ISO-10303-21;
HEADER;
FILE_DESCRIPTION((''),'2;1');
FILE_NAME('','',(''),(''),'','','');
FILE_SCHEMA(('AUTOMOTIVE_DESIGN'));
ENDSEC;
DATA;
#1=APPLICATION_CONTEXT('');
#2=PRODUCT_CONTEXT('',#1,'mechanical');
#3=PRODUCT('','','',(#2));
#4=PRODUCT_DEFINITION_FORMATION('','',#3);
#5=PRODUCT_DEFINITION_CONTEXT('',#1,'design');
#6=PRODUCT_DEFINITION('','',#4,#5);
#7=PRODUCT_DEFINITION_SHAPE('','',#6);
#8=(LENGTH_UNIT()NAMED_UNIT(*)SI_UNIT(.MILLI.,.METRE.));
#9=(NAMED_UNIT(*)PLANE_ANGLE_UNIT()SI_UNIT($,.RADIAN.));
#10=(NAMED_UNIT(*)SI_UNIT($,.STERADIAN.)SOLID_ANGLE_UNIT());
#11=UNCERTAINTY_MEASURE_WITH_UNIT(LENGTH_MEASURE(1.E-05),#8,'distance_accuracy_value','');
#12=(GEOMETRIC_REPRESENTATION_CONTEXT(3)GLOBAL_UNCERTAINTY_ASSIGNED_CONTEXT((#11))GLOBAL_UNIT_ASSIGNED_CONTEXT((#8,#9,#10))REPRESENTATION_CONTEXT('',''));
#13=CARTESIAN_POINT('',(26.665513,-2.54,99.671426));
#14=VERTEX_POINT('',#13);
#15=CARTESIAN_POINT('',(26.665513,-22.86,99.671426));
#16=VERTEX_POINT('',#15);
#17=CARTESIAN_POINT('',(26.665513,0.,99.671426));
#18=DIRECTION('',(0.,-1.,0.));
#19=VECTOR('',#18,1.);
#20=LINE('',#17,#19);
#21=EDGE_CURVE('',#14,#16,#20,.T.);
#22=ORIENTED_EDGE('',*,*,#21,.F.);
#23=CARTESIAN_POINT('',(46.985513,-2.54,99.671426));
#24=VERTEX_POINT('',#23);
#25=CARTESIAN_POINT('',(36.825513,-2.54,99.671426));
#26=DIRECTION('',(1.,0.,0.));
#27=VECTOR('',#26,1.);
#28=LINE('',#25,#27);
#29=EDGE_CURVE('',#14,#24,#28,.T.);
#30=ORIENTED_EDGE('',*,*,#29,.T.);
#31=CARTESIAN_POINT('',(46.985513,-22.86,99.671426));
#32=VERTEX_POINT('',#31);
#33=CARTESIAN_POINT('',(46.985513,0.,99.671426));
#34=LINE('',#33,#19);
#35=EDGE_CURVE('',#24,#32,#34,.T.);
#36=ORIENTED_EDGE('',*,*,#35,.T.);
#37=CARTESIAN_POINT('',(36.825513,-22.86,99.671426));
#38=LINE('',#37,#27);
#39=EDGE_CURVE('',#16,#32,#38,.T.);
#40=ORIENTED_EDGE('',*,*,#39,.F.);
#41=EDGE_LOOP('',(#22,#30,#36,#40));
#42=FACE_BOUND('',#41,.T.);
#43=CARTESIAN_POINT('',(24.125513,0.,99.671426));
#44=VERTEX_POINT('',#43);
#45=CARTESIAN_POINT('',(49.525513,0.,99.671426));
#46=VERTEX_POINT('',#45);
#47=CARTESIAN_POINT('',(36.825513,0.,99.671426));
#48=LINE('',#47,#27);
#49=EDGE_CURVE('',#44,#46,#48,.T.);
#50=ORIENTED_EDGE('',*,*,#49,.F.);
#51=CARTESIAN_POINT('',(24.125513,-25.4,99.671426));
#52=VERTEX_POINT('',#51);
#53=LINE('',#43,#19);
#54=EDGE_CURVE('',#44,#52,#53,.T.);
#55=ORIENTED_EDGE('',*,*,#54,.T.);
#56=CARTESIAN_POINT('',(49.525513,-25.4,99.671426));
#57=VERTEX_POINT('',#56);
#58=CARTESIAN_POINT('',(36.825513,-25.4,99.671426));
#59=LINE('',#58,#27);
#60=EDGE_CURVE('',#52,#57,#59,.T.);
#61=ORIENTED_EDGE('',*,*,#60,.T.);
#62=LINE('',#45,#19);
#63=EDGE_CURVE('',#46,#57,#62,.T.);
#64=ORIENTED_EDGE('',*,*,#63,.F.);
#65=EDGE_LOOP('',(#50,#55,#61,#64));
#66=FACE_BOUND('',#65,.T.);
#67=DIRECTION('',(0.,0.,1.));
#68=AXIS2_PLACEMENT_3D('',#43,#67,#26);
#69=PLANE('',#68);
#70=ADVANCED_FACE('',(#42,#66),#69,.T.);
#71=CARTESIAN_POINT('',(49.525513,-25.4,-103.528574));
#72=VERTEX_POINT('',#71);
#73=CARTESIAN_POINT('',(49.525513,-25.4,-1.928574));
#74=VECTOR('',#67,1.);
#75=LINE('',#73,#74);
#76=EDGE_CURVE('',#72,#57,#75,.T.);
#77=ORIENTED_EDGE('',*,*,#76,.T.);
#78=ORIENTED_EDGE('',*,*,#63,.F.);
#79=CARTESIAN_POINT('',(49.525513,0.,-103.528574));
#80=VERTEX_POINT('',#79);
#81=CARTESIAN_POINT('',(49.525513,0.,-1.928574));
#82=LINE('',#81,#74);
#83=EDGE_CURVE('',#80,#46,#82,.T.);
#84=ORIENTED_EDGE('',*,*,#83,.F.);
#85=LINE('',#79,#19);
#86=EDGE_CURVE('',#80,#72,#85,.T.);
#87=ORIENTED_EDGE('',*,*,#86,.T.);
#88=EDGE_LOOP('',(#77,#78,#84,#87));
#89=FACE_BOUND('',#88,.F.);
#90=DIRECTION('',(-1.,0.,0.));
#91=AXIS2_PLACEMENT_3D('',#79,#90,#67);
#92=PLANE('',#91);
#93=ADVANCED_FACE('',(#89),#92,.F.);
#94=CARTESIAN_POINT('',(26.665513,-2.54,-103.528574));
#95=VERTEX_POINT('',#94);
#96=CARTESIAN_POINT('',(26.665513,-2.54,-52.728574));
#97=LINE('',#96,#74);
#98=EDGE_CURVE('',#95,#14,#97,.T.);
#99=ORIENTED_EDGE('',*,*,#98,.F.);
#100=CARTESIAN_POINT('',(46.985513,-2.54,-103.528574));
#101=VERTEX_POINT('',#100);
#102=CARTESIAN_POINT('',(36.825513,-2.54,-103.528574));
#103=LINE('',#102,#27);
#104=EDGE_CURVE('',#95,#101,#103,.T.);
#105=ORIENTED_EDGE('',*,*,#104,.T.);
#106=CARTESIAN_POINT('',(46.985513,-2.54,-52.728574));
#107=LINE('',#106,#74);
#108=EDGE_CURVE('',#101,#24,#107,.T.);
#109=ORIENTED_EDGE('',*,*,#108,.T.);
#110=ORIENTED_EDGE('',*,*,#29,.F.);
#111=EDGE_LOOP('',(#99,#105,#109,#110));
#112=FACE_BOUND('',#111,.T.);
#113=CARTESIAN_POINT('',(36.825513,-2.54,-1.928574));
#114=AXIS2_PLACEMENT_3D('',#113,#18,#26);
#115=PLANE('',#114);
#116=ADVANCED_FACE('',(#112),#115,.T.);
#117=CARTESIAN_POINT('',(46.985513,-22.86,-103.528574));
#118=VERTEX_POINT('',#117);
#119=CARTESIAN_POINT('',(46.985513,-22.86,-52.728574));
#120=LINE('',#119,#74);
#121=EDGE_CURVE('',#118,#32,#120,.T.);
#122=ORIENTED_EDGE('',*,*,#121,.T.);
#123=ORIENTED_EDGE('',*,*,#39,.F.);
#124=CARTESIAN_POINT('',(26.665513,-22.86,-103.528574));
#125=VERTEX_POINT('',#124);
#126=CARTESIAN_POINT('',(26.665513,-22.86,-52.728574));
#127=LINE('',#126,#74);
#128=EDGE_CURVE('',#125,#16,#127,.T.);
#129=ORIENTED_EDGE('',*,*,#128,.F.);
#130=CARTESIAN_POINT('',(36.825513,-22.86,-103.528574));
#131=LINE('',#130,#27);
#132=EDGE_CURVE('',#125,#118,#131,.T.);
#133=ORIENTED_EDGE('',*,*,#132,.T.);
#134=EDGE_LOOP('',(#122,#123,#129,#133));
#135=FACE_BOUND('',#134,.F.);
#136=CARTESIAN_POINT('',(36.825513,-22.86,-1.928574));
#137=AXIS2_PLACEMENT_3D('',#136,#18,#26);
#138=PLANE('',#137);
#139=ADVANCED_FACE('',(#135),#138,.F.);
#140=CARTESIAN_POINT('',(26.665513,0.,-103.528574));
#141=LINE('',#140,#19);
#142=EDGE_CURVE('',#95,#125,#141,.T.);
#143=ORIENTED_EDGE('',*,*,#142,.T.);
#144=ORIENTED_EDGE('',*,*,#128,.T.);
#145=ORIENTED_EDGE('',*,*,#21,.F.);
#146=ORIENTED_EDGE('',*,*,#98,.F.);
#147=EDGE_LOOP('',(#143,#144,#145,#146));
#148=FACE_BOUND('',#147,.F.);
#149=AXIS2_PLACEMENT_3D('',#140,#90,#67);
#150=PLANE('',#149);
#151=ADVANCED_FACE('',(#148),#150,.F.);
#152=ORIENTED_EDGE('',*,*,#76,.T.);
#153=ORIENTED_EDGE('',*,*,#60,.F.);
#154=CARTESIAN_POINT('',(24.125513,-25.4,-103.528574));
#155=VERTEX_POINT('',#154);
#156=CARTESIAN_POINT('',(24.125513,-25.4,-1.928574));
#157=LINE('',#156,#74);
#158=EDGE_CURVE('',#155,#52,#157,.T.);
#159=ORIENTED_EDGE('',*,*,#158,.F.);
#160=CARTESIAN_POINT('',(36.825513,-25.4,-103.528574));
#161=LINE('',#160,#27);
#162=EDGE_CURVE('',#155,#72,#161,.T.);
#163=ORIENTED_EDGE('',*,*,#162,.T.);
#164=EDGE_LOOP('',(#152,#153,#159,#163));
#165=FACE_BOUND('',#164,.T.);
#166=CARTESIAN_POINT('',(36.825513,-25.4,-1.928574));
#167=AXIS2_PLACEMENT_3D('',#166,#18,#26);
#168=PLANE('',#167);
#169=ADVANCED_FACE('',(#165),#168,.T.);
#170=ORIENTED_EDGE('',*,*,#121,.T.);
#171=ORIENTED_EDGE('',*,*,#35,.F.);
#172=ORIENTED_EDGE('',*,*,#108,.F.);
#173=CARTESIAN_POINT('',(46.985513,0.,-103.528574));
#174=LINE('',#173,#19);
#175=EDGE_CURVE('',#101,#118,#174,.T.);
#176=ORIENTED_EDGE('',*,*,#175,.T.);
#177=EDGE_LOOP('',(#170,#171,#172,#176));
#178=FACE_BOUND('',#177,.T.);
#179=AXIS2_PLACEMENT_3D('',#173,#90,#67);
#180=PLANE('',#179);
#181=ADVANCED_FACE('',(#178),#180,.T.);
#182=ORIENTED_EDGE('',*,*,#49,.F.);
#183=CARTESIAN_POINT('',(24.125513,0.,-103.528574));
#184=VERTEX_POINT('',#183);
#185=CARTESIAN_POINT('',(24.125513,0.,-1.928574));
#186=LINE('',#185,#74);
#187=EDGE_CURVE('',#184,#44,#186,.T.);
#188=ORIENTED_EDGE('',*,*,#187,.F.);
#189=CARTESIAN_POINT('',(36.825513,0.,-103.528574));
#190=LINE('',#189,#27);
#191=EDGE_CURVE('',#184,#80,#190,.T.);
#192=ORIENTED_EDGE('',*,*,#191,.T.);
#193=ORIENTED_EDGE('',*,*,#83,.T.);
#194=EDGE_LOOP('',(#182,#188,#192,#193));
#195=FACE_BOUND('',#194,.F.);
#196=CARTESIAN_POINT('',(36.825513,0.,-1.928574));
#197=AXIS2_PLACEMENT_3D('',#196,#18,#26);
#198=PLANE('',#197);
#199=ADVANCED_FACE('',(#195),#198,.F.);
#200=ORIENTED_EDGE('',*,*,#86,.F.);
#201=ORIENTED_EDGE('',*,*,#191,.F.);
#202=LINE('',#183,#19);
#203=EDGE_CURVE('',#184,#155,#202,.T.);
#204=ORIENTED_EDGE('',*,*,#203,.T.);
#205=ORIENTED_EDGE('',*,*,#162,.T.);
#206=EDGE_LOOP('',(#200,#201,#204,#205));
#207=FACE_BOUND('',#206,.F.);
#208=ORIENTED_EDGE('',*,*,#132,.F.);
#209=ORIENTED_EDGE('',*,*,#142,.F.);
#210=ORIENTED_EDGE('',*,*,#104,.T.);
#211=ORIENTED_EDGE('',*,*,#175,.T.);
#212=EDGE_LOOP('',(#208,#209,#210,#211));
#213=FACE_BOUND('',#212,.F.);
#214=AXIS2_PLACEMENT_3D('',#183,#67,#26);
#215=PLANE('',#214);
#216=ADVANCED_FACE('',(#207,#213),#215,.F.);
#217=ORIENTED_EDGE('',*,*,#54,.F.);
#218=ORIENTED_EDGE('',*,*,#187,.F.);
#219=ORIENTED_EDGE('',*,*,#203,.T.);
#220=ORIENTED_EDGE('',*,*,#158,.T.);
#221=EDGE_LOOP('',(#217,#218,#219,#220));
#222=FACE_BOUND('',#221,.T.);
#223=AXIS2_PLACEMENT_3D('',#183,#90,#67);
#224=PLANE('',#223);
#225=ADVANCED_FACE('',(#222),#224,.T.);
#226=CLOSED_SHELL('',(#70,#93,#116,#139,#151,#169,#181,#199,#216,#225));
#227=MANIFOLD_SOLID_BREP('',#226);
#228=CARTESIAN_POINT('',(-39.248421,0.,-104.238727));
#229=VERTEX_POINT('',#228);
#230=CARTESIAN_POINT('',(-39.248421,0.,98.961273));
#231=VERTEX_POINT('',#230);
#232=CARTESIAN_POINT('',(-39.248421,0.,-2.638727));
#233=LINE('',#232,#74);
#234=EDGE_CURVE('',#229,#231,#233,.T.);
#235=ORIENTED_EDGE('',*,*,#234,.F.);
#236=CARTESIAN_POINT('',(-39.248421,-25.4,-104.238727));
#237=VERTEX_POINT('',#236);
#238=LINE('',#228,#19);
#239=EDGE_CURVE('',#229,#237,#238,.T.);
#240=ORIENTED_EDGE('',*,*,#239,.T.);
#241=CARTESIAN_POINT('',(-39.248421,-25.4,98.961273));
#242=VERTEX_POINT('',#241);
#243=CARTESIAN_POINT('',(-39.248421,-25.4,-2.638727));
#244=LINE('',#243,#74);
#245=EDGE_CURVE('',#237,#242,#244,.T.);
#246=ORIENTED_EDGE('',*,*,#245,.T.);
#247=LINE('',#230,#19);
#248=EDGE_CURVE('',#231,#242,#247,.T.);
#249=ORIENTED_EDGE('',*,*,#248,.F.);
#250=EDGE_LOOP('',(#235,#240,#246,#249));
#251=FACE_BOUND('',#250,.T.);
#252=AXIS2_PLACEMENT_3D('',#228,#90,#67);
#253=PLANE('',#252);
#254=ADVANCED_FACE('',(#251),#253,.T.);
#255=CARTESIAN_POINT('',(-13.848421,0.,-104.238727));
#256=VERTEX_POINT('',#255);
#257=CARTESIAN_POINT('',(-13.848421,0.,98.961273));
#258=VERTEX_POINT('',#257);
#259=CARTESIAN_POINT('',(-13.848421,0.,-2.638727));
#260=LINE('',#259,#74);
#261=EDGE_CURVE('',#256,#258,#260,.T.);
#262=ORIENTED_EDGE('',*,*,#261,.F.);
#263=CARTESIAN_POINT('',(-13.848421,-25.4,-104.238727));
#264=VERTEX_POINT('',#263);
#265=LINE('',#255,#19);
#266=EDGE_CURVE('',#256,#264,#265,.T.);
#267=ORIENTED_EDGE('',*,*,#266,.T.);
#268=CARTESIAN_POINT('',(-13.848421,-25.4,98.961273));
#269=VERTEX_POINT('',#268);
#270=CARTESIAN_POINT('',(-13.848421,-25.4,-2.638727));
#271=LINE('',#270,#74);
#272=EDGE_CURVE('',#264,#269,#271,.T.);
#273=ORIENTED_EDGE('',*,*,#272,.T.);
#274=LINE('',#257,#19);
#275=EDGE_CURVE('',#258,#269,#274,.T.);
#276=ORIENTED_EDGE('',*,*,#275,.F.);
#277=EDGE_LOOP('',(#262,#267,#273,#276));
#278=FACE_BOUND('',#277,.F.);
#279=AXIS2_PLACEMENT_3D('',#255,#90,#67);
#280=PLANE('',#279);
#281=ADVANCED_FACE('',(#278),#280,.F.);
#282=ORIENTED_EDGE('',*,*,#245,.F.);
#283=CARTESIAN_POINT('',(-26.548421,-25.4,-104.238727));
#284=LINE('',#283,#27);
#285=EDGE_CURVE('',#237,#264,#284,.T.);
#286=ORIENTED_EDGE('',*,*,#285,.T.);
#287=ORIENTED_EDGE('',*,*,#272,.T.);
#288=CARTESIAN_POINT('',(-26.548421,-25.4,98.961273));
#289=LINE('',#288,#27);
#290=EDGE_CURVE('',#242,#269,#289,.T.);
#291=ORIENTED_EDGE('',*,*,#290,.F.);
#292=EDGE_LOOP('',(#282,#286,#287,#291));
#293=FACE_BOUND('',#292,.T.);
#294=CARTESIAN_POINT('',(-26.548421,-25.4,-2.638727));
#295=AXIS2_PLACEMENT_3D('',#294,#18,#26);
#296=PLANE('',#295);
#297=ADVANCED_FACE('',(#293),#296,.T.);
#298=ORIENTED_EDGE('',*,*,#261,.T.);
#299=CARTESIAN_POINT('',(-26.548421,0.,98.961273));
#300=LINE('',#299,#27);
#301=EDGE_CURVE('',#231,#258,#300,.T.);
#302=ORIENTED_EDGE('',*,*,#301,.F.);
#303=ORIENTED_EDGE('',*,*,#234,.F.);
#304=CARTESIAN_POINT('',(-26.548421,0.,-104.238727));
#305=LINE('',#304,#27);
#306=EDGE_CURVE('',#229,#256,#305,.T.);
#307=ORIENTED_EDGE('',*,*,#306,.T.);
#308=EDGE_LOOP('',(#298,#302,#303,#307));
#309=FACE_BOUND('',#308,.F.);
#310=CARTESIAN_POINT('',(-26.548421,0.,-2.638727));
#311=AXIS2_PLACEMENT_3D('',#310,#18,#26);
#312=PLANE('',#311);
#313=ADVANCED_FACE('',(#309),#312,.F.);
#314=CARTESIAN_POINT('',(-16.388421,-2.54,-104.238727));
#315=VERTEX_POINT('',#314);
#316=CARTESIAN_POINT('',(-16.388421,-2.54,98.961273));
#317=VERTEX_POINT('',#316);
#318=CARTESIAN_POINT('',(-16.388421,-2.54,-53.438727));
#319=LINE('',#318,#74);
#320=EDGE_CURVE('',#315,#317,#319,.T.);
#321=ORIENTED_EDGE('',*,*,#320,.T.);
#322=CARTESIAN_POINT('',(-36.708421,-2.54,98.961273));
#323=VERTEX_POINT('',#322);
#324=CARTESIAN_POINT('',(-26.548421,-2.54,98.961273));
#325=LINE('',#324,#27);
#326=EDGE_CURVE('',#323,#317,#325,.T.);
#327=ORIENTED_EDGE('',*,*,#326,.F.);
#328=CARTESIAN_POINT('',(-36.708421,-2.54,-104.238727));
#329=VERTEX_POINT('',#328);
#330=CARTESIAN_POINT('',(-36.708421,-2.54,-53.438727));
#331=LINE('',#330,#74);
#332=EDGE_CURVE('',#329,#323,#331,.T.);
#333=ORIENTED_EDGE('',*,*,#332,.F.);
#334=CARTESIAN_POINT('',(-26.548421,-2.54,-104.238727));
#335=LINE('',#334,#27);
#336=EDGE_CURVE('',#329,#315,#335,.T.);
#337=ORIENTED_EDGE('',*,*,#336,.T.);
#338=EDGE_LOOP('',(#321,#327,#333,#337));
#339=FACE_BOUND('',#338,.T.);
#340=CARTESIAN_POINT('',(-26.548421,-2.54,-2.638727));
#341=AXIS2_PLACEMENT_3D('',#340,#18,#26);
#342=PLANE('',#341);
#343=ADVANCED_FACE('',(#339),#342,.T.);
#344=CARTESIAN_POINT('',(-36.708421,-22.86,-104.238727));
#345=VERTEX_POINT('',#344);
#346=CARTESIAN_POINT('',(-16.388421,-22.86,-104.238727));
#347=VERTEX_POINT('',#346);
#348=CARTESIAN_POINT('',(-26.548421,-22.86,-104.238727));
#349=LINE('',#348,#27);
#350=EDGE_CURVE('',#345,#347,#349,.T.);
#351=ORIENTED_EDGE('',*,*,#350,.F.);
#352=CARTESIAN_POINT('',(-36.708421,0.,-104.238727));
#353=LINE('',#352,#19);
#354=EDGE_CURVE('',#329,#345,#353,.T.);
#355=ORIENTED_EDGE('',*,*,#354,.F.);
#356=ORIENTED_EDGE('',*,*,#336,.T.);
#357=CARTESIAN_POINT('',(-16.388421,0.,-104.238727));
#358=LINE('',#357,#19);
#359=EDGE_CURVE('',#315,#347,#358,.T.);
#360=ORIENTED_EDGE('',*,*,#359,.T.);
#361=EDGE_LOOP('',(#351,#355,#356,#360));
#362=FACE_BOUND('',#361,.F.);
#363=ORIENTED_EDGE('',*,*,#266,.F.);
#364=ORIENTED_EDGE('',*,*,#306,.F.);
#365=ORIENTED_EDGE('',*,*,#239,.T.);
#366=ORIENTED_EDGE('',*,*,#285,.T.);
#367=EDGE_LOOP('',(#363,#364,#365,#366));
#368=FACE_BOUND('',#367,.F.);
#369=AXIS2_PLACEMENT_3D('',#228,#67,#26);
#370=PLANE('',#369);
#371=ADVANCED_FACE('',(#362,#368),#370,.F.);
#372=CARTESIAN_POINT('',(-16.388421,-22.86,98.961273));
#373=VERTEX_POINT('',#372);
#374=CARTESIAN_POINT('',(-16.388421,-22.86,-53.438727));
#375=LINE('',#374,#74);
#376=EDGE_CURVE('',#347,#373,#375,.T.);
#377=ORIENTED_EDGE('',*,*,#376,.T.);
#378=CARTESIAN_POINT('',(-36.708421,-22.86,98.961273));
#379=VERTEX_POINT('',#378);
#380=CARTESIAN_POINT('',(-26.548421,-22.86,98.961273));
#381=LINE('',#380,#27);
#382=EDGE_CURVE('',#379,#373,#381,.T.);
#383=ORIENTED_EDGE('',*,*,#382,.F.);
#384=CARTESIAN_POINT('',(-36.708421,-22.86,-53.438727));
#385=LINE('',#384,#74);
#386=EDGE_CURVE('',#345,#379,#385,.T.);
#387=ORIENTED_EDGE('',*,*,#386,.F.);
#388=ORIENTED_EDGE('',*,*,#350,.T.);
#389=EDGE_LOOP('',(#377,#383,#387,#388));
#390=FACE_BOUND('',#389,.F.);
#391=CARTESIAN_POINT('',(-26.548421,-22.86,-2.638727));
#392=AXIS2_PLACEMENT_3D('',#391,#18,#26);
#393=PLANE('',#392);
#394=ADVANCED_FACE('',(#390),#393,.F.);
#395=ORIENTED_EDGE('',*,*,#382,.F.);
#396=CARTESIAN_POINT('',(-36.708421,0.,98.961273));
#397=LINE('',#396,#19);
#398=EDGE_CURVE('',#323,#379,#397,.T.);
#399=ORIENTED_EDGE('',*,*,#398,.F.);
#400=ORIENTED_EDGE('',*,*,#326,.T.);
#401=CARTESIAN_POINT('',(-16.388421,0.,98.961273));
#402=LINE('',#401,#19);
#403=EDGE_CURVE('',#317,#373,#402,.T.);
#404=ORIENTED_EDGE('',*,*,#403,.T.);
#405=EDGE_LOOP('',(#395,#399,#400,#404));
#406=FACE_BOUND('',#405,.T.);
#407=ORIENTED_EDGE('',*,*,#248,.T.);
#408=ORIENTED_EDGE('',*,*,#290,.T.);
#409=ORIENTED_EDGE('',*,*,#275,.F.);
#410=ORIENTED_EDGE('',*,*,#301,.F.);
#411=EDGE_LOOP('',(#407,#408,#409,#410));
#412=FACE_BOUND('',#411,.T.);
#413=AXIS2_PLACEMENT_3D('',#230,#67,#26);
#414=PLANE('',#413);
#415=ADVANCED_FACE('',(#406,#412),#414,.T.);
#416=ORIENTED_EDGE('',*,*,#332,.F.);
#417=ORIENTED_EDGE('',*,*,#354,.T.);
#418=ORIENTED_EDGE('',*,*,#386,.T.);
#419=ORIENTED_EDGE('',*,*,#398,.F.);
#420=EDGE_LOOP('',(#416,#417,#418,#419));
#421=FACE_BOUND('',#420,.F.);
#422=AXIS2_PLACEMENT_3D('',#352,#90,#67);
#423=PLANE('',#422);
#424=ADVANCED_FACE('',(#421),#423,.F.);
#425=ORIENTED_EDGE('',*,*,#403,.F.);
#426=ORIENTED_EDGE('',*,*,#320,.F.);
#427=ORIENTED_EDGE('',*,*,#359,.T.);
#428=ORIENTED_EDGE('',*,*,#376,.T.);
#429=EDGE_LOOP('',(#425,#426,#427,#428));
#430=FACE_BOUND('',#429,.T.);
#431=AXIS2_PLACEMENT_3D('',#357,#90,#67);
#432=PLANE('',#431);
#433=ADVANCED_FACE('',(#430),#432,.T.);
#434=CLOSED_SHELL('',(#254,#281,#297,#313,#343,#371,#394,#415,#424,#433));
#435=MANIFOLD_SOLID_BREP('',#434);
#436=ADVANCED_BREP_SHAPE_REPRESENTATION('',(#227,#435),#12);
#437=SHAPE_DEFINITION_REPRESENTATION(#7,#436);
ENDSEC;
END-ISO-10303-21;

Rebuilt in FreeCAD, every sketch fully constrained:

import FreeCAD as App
import Part
import Sketcher

V = App.Vector
Q = App.Units.Quantity


def faces_at(feature, points):
    """Names of the faces that lie closest to the given points."""
    faces = feature.Shape.Faces
    near = lambda p: min(range(len(faces)), key=lambda i: faces[i].distToShape(Part.Vertex(*p))[0])
    return sorted({f"Face{near(p) + 1}" for p in points})

doc = App.newDocument("Part")
body = doc.addObject("PartDesign::Body", "Body")

# Sketch on XZ plane
sketch1 = body.newObject("Sketcher::SketchObject", "Sketch")
sketch1.AttachmentSupport = (doc.getObject("XZ_Plane"), [""])
sketch1.MapMode = "FlatFace"
sketch1.addGeometry(Part.LineSegment(V(24, 100, 0), V(24, -104, 0)), False)
sketch1.addGeometry(Part.LineSegment(V(24, -104, 0), V(50, -104, 0)), False)
sketch1.addGeometry(Part.LineSegment(V(50, -104, 0), V(50, 100, 0)), False)
sketch1.addGeometry(Part.LineSegment(V(50, 100, 0), V(24, 100, 0)), False)
sketch1.addConstraint(Sketcher.Constraint("Coincident", 0, 2, 1, 1))
sketch1.addConstraint(Sketcher.Constraint("Coincident", 1, 2, 2, 1))
sketch1.addConstraint(Sketcher.Constraint("Coincident", 2, 2, 3, 1))
sketch1.addConstraint(Sketcher.Constraint("Coincident", 3, 2, 0, 1))
sketch1.addConstraint(Sketcher.Constraint("Vertical", 0))
sketch1.addConstraint(Sketcher.Constraint("Horizontal", 1))
sketch1.addConstraint(Sketcher.Constraint("Vertical", 2))
sketch1.addConstraint(Sketcher.Constraint("Horizontal", 3))
sketch1.addConstraint(Sketcher.Constraint("DistanceX", 1, 1, 1, 2, Q("1 in")))
sketch1.addConstraint(Sketcher.Constraint("DistanceY", 0, 2, 0, 1, Q("8 in")))
sketch1.addConstraint(Sketcher.Constraint("DistanceX", -1, 1, 0, 2, 24.125513))
sketch1.addConstraint(Sketcher.Constraint("DistanceY", 0, 2, -1, 1, 103.528574))
pad1 = body.newObject("PartDesign::Pad", "Pad")
pad1.Profile = sketch1
pad1.Length = Q("1 in")
doc.recompute()

thickness = body.newObject("PartDesign::Thickness", "Thickness")
thickness.Base = (pad1, faces_at(pad1, [(36.826, -12.7, 99.671), (36.826, -12.7, -103.529)]))
thickness.Value = Q("0.1 in")
thickness.Reversed = True
thickness.Join = "Arc"
body2 = doc.addObject("PartDesign::Body", "Body001")

# Sketch on XZ plane
sketch2 = body2.newObject("Sketcher::SketchObject", "Sketch001")
sketch2.AttachmentSupport = (doc.getObject("XZ_Plane001"), [""])
sketch2.MapMode = "FlatFace"
sketch2.addGeometry(Part.LineSegment(V(-39, 99, 0), V(-39, -104, 0)), False)
sketch2.addGeometry(Part.LineSegment(V(-39, -104, 0), V(-14, -104, 0)), False)
sketch2.addGeometry(Part.LineSegment(V(-14, -104, 0), V(-14, 99, 0)), False)
sketch2.addGeometry(Part.LineSegment(V(-14, 99, 0), V(-39, 99, 0)), False)
sketch2.addConstraint(Sketcher.Constraint("Coincident", 0, 2, 1, 1))
sketch2.addConstraint(Sketcher.Constraint("Coincident", 1, 2, 2, 1))
sketch2.addConstraint(Sketcher.Constraint("Coincident", 2, 2, 3, 1))
sketch2.addConstraint(Sketcher.Constraint("Coincident", 3, 2, 0, 1))
sketch2.addConstraint(Sketcher.Constraint("Vertical", 0))
sketch2.addConstraint(Sketcher.Constraint("Horizontal", 1))
sketch2.addConstraint(Sketcher.Constraint("Vertical", 2))
sketch2.addConstraint(Sketcher.Constraint("Horizontal", 3))
sketch2.addConstraint(Sketcher.Constraint("DistanceX", 1, 1, 1, 2, Q("1 in")))
sketch2.addConstraint(Sketcher.Constraint("DistanceY", 0, 2, 0, 1, Q("8 in")))
sketch2.addConstraint(Sketcher.Constraint("DistanceX", 0, 2, -1, 1, 39.248421))
sketch2.addConstraint(Sketcher.Constraint("DistanceY", 0, 2, -1, 1, 104.238727))
pad2 = body2.newObject("PartDesign::Pad", "Pad001")
pad2.Profile = sketch2
pad2.Length = Q("1 in")
doc.recompute()

thickness2 = body2.newObject("PartDesign::Thickness", "Thickness001")
thickness2.Base = (pad2, faces_at(pad2, [(-26.548, -12.7, 98.961), (-26.548, -12.7, -104.239)]))
thickness2.Value = Q("0.1 in")
thickness2.Reversed = True
thickness2.Join = "Arc"

doc.recompute()
